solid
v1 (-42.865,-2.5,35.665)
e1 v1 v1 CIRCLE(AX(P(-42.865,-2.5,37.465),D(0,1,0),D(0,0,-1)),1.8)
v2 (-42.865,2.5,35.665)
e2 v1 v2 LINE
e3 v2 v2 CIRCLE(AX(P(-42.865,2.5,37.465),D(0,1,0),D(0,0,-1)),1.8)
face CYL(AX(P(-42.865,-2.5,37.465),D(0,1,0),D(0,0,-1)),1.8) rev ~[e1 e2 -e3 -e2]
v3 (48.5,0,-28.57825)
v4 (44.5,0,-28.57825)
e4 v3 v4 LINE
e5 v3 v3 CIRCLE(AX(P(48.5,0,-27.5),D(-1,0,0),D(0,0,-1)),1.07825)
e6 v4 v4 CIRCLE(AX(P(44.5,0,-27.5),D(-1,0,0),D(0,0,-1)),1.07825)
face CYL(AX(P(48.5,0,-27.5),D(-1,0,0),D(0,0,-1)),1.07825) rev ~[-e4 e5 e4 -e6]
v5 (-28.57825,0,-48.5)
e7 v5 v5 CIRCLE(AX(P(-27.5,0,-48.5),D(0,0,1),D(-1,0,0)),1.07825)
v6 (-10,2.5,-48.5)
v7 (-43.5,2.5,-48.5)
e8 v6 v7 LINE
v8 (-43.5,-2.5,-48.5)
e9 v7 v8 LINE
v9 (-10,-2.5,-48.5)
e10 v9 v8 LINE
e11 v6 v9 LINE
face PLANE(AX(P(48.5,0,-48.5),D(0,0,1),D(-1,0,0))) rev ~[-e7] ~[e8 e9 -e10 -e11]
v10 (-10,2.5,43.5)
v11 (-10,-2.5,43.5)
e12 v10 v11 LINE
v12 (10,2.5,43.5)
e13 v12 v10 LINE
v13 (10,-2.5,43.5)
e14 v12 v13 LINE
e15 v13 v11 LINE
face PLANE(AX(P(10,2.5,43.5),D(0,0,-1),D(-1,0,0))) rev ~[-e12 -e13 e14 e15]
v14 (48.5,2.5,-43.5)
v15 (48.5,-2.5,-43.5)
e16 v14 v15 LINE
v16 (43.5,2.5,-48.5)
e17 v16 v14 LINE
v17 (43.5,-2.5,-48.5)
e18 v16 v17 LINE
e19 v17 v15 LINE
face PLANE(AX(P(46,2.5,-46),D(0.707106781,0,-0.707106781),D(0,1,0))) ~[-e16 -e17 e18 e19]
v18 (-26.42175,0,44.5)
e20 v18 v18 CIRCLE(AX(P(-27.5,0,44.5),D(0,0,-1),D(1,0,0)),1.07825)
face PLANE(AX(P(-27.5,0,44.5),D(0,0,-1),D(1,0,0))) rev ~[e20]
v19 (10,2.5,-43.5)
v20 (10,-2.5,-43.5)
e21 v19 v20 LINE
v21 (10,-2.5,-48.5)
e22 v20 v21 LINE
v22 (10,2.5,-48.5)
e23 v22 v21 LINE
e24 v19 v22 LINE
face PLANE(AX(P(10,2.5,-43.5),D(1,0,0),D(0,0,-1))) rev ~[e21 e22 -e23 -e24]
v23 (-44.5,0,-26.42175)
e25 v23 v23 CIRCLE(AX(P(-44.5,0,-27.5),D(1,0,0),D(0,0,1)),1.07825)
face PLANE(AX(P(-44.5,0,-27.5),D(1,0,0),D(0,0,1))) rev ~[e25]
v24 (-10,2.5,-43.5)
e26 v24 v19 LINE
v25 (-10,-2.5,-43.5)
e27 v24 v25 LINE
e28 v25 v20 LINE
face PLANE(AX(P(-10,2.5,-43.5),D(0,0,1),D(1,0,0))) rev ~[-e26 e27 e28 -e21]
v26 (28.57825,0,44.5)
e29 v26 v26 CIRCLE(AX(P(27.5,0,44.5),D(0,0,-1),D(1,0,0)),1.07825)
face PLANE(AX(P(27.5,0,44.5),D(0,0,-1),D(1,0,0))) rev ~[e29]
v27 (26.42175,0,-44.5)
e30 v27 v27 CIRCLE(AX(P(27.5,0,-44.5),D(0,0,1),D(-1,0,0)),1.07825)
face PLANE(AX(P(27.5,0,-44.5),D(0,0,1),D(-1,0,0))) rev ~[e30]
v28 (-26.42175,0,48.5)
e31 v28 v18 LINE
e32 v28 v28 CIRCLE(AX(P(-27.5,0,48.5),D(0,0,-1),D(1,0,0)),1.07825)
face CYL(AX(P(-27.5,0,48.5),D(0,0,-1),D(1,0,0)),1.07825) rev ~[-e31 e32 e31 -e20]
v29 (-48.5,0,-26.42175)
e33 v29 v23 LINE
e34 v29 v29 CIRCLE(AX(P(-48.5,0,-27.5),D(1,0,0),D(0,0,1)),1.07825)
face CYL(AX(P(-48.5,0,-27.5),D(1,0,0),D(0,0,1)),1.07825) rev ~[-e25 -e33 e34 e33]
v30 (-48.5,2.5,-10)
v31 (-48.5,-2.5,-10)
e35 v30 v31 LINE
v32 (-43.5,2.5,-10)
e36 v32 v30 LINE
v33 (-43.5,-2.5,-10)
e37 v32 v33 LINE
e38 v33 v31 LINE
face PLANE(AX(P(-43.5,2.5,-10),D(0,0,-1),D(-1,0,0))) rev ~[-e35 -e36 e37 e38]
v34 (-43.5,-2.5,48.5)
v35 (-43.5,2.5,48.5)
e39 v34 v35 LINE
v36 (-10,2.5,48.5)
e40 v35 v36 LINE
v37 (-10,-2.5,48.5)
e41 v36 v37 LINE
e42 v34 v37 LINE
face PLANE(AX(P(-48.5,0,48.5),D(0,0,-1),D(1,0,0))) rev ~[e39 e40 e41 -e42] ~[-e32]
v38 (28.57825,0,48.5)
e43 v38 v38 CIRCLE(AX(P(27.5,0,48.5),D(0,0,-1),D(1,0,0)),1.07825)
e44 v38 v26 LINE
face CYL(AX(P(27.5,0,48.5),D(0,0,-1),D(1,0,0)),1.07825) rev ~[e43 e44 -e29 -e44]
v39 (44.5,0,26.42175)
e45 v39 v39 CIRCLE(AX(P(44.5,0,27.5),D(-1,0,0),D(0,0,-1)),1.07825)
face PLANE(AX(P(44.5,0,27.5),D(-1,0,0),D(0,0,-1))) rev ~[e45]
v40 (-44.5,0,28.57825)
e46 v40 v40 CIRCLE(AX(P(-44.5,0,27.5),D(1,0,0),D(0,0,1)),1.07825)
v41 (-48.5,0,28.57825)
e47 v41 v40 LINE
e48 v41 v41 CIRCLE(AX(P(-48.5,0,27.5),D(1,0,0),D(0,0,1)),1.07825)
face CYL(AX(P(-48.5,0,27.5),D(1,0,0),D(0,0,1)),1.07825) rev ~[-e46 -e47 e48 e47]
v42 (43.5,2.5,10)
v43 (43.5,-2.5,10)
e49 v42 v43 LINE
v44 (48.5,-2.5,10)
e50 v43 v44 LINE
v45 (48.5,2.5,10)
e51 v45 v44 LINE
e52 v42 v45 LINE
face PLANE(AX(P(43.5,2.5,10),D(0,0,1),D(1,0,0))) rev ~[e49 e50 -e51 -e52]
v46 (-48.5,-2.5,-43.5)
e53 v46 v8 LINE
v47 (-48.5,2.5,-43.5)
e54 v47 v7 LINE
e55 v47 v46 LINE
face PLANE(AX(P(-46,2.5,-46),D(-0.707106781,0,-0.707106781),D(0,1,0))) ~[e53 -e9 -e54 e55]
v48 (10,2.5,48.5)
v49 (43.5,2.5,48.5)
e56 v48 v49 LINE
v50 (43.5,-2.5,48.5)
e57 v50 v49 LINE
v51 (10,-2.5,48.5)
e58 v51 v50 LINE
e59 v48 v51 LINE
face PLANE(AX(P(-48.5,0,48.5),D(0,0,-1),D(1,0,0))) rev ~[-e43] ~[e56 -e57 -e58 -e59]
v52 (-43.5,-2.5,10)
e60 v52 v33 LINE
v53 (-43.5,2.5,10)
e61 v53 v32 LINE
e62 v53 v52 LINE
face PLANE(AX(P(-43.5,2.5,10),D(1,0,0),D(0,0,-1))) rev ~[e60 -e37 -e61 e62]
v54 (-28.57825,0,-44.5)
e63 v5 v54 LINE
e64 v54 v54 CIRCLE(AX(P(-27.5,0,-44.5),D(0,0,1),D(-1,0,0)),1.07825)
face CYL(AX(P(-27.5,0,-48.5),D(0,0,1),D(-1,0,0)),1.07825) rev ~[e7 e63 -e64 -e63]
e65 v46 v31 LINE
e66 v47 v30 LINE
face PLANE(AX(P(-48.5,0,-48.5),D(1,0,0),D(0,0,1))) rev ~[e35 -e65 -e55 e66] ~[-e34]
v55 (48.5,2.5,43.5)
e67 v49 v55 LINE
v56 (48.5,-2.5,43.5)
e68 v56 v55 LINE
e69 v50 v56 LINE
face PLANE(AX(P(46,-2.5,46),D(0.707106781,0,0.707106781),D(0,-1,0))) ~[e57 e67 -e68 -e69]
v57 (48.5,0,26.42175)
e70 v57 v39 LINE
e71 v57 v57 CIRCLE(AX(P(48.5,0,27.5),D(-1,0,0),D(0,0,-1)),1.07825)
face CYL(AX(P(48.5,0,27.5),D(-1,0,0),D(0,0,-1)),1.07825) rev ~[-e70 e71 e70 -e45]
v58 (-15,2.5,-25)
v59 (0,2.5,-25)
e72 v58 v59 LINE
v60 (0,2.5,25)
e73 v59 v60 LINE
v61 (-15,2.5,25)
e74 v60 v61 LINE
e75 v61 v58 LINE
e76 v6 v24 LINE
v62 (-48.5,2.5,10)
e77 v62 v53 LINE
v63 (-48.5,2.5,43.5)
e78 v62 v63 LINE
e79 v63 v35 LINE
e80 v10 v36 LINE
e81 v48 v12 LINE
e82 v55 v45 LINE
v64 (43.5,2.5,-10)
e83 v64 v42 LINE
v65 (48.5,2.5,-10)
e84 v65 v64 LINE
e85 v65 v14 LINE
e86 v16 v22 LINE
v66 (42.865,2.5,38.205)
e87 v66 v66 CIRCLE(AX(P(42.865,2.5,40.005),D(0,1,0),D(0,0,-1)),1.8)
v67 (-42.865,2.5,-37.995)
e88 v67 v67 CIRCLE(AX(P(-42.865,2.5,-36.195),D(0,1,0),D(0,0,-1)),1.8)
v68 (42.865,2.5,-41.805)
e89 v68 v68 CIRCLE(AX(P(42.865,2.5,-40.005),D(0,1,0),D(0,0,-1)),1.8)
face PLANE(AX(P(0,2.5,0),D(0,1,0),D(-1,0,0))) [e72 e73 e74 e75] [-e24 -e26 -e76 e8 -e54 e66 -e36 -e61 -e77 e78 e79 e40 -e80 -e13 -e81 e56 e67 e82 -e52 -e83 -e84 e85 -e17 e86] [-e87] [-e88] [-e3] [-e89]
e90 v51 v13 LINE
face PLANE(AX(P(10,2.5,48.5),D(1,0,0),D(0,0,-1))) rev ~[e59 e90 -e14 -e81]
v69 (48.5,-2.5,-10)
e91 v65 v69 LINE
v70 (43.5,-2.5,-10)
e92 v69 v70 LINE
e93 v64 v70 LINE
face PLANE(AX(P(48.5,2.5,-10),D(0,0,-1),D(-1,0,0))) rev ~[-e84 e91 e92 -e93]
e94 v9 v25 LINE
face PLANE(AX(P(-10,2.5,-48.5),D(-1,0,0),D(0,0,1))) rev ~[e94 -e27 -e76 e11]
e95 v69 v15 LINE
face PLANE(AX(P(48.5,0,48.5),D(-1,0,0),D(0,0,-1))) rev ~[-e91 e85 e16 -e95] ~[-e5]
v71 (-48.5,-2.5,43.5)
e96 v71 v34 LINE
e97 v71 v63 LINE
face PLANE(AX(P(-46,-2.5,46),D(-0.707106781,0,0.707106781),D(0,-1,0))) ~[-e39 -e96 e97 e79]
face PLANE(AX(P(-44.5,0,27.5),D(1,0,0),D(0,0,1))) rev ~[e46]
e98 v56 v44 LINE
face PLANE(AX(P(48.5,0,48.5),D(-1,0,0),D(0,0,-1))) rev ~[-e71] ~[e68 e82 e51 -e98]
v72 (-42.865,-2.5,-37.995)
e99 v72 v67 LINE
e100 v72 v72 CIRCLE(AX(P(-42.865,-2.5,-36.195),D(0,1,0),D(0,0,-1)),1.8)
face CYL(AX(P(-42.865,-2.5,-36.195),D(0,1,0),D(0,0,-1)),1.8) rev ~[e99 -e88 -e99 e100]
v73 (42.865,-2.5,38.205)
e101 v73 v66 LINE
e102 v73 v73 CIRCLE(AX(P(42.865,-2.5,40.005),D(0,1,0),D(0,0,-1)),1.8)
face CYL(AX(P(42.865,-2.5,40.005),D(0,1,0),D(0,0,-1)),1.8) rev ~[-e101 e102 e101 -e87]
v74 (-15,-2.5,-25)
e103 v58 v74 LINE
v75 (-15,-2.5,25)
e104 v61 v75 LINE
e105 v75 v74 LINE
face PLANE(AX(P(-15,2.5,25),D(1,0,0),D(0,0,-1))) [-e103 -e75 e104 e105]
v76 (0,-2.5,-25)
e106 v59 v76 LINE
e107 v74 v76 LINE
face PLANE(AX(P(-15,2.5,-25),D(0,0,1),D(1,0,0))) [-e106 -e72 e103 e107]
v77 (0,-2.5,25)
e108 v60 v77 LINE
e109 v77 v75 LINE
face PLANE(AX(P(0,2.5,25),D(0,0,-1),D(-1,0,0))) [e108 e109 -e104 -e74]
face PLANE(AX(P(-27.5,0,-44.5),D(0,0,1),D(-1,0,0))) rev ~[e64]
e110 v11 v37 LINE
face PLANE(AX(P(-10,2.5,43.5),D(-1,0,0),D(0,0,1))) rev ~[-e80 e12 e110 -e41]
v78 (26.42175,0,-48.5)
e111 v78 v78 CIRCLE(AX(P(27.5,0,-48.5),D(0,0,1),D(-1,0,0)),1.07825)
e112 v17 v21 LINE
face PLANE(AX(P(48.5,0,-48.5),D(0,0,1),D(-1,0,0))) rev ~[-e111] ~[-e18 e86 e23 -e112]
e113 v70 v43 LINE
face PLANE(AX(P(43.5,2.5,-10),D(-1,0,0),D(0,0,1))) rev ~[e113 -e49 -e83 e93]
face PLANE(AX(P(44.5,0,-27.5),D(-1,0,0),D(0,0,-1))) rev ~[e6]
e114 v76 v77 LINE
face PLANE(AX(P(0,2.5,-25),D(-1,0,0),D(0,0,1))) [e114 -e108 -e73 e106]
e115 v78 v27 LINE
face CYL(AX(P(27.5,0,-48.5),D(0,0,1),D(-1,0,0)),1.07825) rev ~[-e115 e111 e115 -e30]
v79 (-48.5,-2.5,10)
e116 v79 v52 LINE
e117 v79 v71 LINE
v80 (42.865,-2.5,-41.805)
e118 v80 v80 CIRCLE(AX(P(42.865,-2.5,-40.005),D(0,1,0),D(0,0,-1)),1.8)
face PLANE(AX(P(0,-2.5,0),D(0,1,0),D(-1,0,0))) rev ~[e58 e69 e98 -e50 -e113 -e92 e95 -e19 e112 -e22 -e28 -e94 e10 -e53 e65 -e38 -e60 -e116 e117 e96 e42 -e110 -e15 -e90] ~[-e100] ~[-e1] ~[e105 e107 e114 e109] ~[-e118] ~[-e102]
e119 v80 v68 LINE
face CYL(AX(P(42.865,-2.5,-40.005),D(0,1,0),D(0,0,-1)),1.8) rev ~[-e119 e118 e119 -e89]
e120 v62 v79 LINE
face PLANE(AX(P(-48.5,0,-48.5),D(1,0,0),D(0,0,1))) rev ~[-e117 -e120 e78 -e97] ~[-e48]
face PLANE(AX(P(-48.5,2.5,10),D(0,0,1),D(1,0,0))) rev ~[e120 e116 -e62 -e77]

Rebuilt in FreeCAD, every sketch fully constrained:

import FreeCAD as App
import Part
import Sketcher
Q = App.Units.Quantity


def edges_at(feature, points):
    """Names of the edges that pass closest to the given points."""
    edges = feature.Shape.Edges
    near = lambda p: min(range(len(edges)), key=lambda i: edges[i].distToShape(Part.Vertex(*p))[0])
    return sorted({f"Edge{near(p) + 1}" for p in points})

doc = App.newDocument("Part")
body = doc.addObject("PartDesign::Body", "Body")

# Sketch on XZ plane
sketch1 = body.newObject("Sketcher::SketchObject", "Sketch")
sketch1.AttachmentSupport = (doc.getObject("XZ_Plane"), [""])
sketch1.MapMode = "FlatFace"
sketch1.addGeometry(Part.LineSegment(App.Vector(-48, -48, 0), App.Vector(-48, 48, 0)), False)
sketch1.addGeometry(Part.LineSegment(App.Vector(-48, 48, 0), App.Vector(48, 48, 0)), False)
sketch1.addGeometry(Part.LineSegment(App.Vector(48, 48, 0), App.Vector(48, -48, 0)), False)
sketch1.addGeometry(Part.LineSegment(App.Vector(48, -48, 0), App.Vector(-48, -48, 0)), False)
sketch1.addConstraint(Sketcher.Constraint("Coincident", 0, 2, 1, 1))
sketch1.addConstraint(Sketcher.Constraint("Coincident", 1, 2, 2, 1))
sketch1.addConstraint(Sketcher.Constraint("Coincident", 2, 2, 3, 1))
sketch1.addConstraint(Sketcher.Constraint("Coincident", 3, 2, 0, 1))
sketch1.addConstraint(Sketcher.Constraint("Vertical", 0))
sketch1.addConstraint(Sketcher.Constraint("Horizontal", 1))
sketch1.addConstraint(Sketcher.Constraint("Vertical", 2))
sketch1.addConstraint(Sketcher.Constraint("Horizontal", 3))
sketch1.addConstraint(Sketcher.Constraint("Symmetric", 0, 2, 2, 2, -1, 1))
sketch1.addConstraint(Sketcher.Constraint("Equal", 3, 0))
sketch1.addConstraint(Sketcher.Constraint("DistanceX", 1, 1, 1, 2, Q("97 mm")))
pad1 = body.newObject("PartDesign::Pad", "Pad")
pad1.Profile = sketch1
pad1.Length = 5
pad1.Midplane = True

# Sketch on XZ plane
sketch2 = body.newObject("Sketcher::SketchObject", "Sketch001")
sketch2.AttachmentSupport = (doc.getObject("XZ_Plane"), [""])
sketch2.MapMode = "FlatFace"
sketch2.AttachmentOffset = App.Placement(App.Vector(0, 0, 2.5), App.Rotation())
sketch2.addGeometry(Part.Circle(App.Vector(-42.9, 37.5, 0), App.Vector(0, 0, 1), 1.8), False)
sketch2.addGeometry(Part.Circle(App.Vector(42.9, 40, 0), App.Vector(0, 0, 1), 1.8), False)
sketch2.addGeometry(Part.Circle(App.Vector(-42.9, -36.2, 0), App.Vector(0, 0, 1), 1.8), False)
sketch2.addGeometry(Part.Circle(App.Vector(42.9, -40, 0), App.Vector(0, 0, 1), 1.8), False)
sketch2.addConstraint(Sketcher.Constraint("Equal", 0, 1))
sketch2.addConstraint(Sketcher.Constraint("Equal", 1, 2))
sketch2.addConstraint(Sketcher.Constraint("Equal", 2, 3))
sketch2.addConstraint(Sketcher.Constraint("Symmetric", 1, 3, 3, 3, -1))
sketch2.addConstraint(Sketcher.Constraint("Vertical", 0, 3, 2, 3))
sketch2.addConstraint(Sketcher.Constraint("Diameter", 0, Q("3.6 mm")))
sketch2.addConstraint(Sketcher.Constraint("DistanceY", 2, 3, 1, 3, Q("76.2 mm")))
sketch2.addConstraint(Sketcher.Constraint("DistanceX", 0, 3, 1, 3, Q("85.73 mm")))
sketch2.addConstraint(Sketcher.Constraint("DistanceY", 0, 3, 1, 3, Q("2.54 mm")))
sketch2.addConstraint(Sketcher.Constraint("DistanceY", 3, 3, 1, 3, Q("80.01 mm")))
sketch2.addConstraint(Sketcher.Constraint("DistanceX", 0, 3, -1, 1, Q("42.865 mm")))
doc.recompute()
hole = body.newObject("PartDesign::Hole", "Hole")
hole.Profile = sketch2
hole.ThreadType = "None"
hole.Diameter = 3.6
hole.DepthType = "ThroughAll"
doc.recompute()

chamfer = body.newObject("PartDesign::Chamfer", "Chamfer")
chamfer.Base = (hole, edges_at(hole, [
    (48.5, 0, -48.5),
    (-48.5, 0, -48.5),
    (48.5, 0, 48.5),
    (-48.5, 0, 48.5),
]))
chamfer.Size = 5

# Sketch on YZ plane
sketch3 = body.newObject("Sketcher::SketchObject", "Sketch002")
sketch3.AttachmentSupport = (doc.getObject("YZ_Plane"), [""])
sketch3.MapMode = "FlatFace"
sketch3.AttachmentOffset = App.Placement(App.Vector(0, 0, 48.5), App.Rotation())
sketch3.addGeometry(Part.Circle(App.Vector(0, -27.5, 0), App.Vector(0, 0, 1), 1.1), False)
sketch3.addGeometry(Part.Circle(App.Vector(0, 27.5, 0), App.Vector(0, 0, 1), 1.1), False)
sketch3.addConstraint(Sketcher.Constraint("Equal", 0, 1))
sketch3.addConstraint(Sketcher.Constraint("Symmetric", 0, 3, 1, 3, -1, 1))
sketch3.addConstraint(Sketcher.Constraint("PointOnObject", 0, 3, -2))
sketch3.addConstraint(Sketcher.Constraint("DistanceY", 0, 3, 1, 3, Q("55 mm")))
sketch3.addConstraint(Sketcher.Constraint("Diameter", 0, Q("2.1565 mm")))
doc.recompute()
hole2 = body.newObject("PartDesign::Hole", "Hole001")
hole2.Profile = sketch3
hole2.ThreadType = "None"
hole2.Diameter = 2.1565
hole2.DepthType = "Dimension"
hole2.Depth = 4
hole2.DrillPoint = "Flat"
doc.recompute()

polarpattern = body.newObject("PartDesign::PolarPattern", "PolarPattern")
polarpattern.Originals = [hole2]
polarpattern.Axis = (doc.getObject("Y_Axis"), [""])
polarpattern.Angle = 360
polarpattern.Occurrences = 4
body.Tip = polarpattern

# Sketch on XZ plane
sketch4 = body.newObject("Sketcher::SketchObject", "Sketch003")
sketch4.AttachmentSupport = (doc.getObject("XZ_Plane"), [""])
sketch4.MapMode = "FlatFace"
sketch4.AttachmentOffset = App.Placement(App.Vector(0, 0, -2.5), App.Rotation())
sketch4.addGeometry(Part.LineSegment(App.Vector(0, -25, 0), App.Vector(-15, -25, 0)), False)
sketch4.addGeometry(Part.LineSegment(App.Vector(-15, -25, 0), App.Vector(-15, 25, 0)), False)
sketch4.addGeometry(Part.LineSegment(App.Vector(-15, 25, 0), App.Vector(0, 25, 0)), False)
sketch4.addGeometry(Part.LineSegment(App.Vector(0, 25, 0), App.Vector(0, -25, 0)), False)
sketch4.addConstraint(Sketcher.Constraint("Coincident", 0, 2, 1, 1))
sketch4.addConstraint(Sketcher.Constraint("Coincident", 1, 2, 2, 1))
sketch4.addConstraint(Sketcher.Constraint("Coincident", 2, 2, 3, 1))
sketch4.addConstraint(Sketcher.Constraint("Coincident", 3, 2, 0, 1))
sketch4.addConstraint(Sketcher.Constraint("Horizontal", 0))
sketch4.addConstraint(Sketcher.Constraint("Vertical", 1))
sketch4.addConstraint(Sketcher.Constraint("Horizontal", 2))
sketch4.addConstraint(Sketcher.Constraint("Vertical", 3))
sketch4.addConstraint(Sketcher.Constraint("Symmetric", 2, 2, 3, 2, -1, 1))
sketch4.addConstraint(Sketcher.Constraint("DistanceX", 0, 2, 0, 1, Q("15 mm")))
sketch4.addConstraint(Sketcher.Constraint("DistanceY", 1, 1, 1, 2, Q("50 mm")))
pocket1 = body.newObject("PartDesign::Pocket", "Pocket")
pocket1.Profile = sketch4
pocket1.Type = "ThroughAll"
pocket1.Reversed = True

# Sketch on XZ plane
sketch5 = body.newObject("Sketcher::SketchObject", "Sketch004")
sketch5.AttachmentSupport = (doc.getObject("XZ_Plane"), [""])
sketch5.MapMode = "FlatFace"
sketch5.AttachmentOffset = App.Placement(App.Vector(0, 0, -2.5), App.Rotation())
sketch5.addGeometry(Part.LineSegment(App.Vector(-44, -10, 0), App.Vector(-48, -10, 0)), False)
sketch5.addGeometry(Part.LineSegment(App.Vector(-48, -10, 0), App.Vector(-48, 10, 0)), False)
sketch5.addGeometry(Part.LineSegment(App.Vector(-48, 10, 0), App.Vector(-44, 10, 0)), False)
sketch5.addGeometry(Part.LineSegment(App.Vector(-44, 10, 0), App.Vector(-44, -10, 0)), False)
sketch5.addConstraint(Sketcher.Constraint("Coincident", 0, 2, 1, 1))
sketch5.addConstraint(Sketcher.Constraint("Coincident", 1, 2, 2, 1))
sketch5.addConstraint(Sketcher.Constraint("Coincident", 2, 2, 3, 1))
sketch5.addConstraint(Sketcher.Constraint("Coincident", 3, 2, 0, 1))
sketch5.addConstraint(Sketcher.Constraint("Horizontal", 0))
sketch5.addConstraint(Sketcher.Constraint("Vertical", 1))
sketch5.addConstraint(Sketcher.Constraint("Horizontal", 2))
sketch5.addConstraint(Sketcher.Constraint("Vertical", 3))
sketch5.addConstraint(Sketcher.Constraint("DistanceX", 0, 2, 0, 1, Q("5 mm")))
sketch5.addConstraint(Sketcher.Constraint("DistanceY", 1, 1, 1, 2, Q("20 mm")))
sketch5.addConstraint(Sketcher.Constraint("DistanceY", 0, 2, -1, 1, Q("10 mm")))
sketch5.addConstraint(Sketcher.Constraint("DistanceX", 0, 2, -1, 1, Q("48.5 mm")))
pocket2 = body.newObject("PartDesign::Pocket", "Pocket001")
pocket2.Profile = sketch5
pocket2.Type = "ThroughAll"
pocket2.Reversed = True
doc.recompute()

polarpattern2 = body.newObject("PartDesign::PolarPattern", "PolarPattern001")
polarpattern2.Originals = [pocket2]
polarpattern2.Axis = (doc.getObject("Y_Axis"), [""])
polarpattern2.Angle = 360
polarpattern2.Occurrences = 4
body.Tip = polarpattern2

doc.recompute()
